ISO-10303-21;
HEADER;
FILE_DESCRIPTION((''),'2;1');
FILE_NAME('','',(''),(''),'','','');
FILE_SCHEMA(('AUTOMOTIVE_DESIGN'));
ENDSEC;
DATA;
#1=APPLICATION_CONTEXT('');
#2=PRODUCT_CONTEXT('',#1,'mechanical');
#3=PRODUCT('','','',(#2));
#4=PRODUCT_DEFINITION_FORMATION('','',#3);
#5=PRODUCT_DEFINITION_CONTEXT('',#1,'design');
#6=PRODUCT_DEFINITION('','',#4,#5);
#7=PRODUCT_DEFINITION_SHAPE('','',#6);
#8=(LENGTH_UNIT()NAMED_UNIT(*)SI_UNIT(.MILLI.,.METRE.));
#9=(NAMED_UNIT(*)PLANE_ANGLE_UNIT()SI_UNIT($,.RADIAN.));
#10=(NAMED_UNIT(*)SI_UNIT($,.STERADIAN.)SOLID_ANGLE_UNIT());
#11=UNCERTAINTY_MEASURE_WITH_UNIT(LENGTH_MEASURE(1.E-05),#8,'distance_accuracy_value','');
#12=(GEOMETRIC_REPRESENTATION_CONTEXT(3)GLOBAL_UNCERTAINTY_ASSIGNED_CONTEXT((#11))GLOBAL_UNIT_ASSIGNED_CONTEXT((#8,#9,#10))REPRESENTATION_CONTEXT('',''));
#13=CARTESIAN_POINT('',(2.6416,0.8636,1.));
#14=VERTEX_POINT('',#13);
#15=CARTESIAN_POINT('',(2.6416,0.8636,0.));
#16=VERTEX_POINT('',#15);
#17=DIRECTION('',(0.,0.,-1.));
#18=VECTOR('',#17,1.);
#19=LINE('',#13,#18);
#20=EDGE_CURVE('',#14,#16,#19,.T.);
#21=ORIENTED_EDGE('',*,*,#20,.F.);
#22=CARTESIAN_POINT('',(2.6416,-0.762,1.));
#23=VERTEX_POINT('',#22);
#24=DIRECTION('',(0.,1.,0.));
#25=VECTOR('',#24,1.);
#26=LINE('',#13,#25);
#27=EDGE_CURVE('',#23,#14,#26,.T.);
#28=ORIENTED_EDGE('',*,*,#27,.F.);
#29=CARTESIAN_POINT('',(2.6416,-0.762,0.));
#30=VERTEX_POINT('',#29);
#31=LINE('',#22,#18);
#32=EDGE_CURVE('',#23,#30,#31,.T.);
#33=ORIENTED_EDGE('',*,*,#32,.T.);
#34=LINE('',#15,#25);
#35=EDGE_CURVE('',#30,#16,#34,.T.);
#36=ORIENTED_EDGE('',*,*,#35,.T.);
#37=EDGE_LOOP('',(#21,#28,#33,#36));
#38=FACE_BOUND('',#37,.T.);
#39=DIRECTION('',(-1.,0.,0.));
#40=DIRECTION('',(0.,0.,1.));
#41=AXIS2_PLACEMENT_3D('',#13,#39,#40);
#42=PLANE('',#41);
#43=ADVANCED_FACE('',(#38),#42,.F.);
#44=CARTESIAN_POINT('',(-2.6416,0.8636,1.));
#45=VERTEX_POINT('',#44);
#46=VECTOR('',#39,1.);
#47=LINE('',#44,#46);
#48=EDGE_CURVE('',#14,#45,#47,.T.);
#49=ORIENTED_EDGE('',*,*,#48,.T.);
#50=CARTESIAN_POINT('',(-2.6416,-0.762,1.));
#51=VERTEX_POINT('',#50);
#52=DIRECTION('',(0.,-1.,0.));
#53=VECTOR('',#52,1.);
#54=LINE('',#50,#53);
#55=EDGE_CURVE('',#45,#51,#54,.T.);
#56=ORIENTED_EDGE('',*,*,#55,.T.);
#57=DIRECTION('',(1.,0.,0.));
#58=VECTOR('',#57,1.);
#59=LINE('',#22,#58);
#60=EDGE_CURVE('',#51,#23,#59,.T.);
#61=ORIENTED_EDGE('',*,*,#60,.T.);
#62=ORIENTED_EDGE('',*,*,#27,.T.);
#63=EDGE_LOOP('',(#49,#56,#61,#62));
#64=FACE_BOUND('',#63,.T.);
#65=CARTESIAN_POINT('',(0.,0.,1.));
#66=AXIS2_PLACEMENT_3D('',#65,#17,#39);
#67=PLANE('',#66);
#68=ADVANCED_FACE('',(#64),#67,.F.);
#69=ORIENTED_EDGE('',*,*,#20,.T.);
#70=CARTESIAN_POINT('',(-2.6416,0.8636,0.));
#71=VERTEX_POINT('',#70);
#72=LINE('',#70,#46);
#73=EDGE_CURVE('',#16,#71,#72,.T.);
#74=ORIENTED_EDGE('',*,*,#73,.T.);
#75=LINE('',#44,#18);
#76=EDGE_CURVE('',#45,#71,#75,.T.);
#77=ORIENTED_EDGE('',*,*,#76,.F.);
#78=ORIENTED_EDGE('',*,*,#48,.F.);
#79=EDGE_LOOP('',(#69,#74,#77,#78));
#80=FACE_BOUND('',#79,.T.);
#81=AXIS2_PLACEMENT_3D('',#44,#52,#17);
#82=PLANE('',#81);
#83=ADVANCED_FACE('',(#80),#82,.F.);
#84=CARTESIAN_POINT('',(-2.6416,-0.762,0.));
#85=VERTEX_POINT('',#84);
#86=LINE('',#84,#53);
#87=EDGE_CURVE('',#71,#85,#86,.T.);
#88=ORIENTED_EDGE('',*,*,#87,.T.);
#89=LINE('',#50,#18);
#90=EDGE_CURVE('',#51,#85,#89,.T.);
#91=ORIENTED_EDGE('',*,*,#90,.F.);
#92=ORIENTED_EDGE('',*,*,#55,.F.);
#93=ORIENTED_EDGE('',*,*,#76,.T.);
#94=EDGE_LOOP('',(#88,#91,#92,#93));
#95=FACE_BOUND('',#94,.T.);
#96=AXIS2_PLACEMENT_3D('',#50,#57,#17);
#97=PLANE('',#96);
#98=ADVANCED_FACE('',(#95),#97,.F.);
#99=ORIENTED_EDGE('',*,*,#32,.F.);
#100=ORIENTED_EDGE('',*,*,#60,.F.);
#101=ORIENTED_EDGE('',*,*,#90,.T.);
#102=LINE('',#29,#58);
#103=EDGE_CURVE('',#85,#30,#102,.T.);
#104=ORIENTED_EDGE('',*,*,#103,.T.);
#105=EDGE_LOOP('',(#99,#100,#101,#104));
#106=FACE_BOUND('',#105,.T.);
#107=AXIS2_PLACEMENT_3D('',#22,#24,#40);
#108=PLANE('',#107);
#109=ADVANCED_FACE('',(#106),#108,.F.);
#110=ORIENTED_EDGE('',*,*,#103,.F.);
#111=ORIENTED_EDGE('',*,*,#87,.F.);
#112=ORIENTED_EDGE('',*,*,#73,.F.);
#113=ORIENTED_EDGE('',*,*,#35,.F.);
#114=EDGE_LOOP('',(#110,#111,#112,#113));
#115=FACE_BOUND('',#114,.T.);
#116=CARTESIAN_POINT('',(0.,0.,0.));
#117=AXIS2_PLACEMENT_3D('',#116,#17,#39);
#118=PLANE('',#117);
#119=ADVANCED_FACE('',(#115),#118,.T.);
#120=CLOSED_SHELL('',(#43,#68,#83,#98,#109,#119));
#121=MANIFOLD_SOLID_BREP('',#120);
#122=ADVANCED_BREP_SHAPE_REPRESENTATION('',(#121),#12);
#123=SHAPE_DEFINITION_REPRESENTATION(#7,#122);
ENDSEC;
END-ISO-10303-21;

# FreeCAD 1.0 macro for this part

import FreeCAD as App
import Part
import Sketcher
from FreeCAD import Vector
Q = App.Units.Quantity

doc = App.newDocument("Part")
params = doc.addObject("Spreadsheet::Sheet", "Params")
for row, (alias, value) in enumerate([
    ("sketch1_width", "0.208 in"),
    ("sketch1_height", "0.064 in"),
    ("pad1_length", "1 mm"),
], start=1):
    params.set(f"A{row}", alias)
    params.set(f"B{row}", "=" + value)
    params.setAlias(f"B{row}", alias)

body = doc.addObject("PartDesign::Body", "Body")

# Sketch on XY plane
sketch1 = body.newObject("Sketcher::SketchObject", "Sketch")
sketch1.AttachmentSupport = (doc.getObject("XY_Plane"), [""])
sketch1.MapMode = "FlatFace"
sketch1.addGeometry(Part.LineSegment(Vector(-2.6416, 0.8636, 0), Vector(-2.6416, -0.762, 0)), False)
sketch1.addGeometry(Part.LineSegment(Vector(-2.6416, -0.762, 0), Vector(2.6416, -0.762, 0)), False)
sketch1.addGeometry(Part.LineSegment(Vector(2.6416, -0.762, 0), Vector(2.6416, 0.8636, 0)), False)
sketch1.addGeometry(Part.LineSegment(Vector(2.6416, 0.8636, 0), Vector(-2.6416, 0.8636, 0)), False)
sketch1.addConstraint(Sketcher.Constraint("Coincident", 0, 2, 1, 1))
sketch1.addConstraint(Sketcher.Constraint("Coincident", 1, 2, 2, 1))
sketch1.addConstraint(Sketcher.Constraint("Coincident", 2, 2, 3, 1))
sketch1.addConstraint(Sketcher.Constraint("Coincident", 3, 2, 0, 1))
sketch1.addConstraint(Sketcher.Constraint("Vertical", 0))
sketch1.addConstraint(Sketcher.Constraint("Horizontal", 1))
sketch1.addConstraint(Sketcher.Constraint("Vertical", 2))
sketch1.addConstraint(Sketcher.Constraint("Horizontal", 3))
sketch1.addConstraint(Sketcher.Constraint("DistanceX", 1, 1, 1, 2, Q("0.208 in")))
sketch1.addConstraint(Sketcher.Constraint("DistanceY", 0, 2, 0, 1, Q("0.064 in")))
sketch1.addConstraint(Sketcher.Constraint("DistanceY", 0, 2, -1, 1, Q("0.03 in")))
sketch1.addConstraint(Sketcher.Constraint("DistanceX", 0, 2, -1, 1, Q("0.104 in")))
sketch1.setExpression("Constraints[8]", "Params.sketch1_width")
sketch1.setExpression("Constraints[9]", "Params.sketch1_height")
pad1 = body.newObject("PartDesign::Pad", "Pad")
pad1.Profile = sketch1
pad1.setExpression("Length", "Params.pad1_length")

doc.recompute()
